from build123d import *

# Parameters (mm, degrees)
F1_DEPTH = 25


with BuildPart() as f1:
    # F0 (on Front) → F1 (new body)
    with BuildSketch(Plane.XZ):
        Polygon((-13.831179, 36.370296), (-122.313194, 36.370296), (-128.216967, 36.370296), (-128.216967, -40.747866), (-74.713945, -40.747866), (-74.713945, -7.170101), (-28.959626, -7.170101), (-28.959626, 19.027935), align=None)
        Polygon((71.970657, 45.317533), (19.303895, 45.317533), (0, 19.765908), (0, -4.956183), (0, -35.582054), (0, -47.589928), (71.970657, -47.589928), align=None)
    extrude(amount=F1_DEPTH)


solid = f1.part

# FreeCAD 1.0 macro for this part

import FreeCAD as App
import Part
import Sketcher

V = App.Vector


def add_polygon(sketch, points):
    """Adds a closed chain of lines whose ends are joined by coincident constraints."""
    first, n = sketch.GeometryCount, len(points)
    for a, b in zip(points, points[1:] + points[:1]):
        sketch.addGeometry(Part.LineSegment(App.Vector(*a, 0), App.Vector(*b, 0)), False)
    for i in range(n):
        sketch.addConstraint(Sketcher.Constraint("Coincident", first + i, 2, first + (i + 1) % n, 1))

doc = App.newDocument("Part")
body = doc.addObject("PartDesign::Body", "Body")
body.AllowCompound = True

# Sketch on XZ plane
sketch1 = body.newObject("Sketcher::SketchObject", "Sketch")
sketch1.AttachmentSupport = (doc.getObject("XZ_Plane"), [""])
sketch1.MapMode = "FlatFace"
add_polygon(sketch1, [(-13.831179, 36.370296), (-128.216967, 36.370296), (-128.216967, -40.747866), (-74.713945, -40.747866), (-74.713945, -7.170101), (-28.959626, -7.170101), (-28.959626, 19.027935)])  # lines 0-6
add_polygon(sketch1, [(71.970657, 45.317533), (19.303895, 45.317533), (0, 19.765908), (0, -47.589928), (71.970657, -47.589928)])  # lines 7-11
sketch1.addConstraint([
    Sketcher.Constraint("Horizontal", 0),
    Sketcher.Constraint("Vertical", 1),
    Sketcher.Constraint("Horizontal", 2),
    Sketcher.Constraint("Vertical", 3),
    Sketcher.Constraint("Horizontal", 4),
    Sketcher.Constraint("Vertical", 5),
    Sketcher.Constraint("Horizontal", 7),
    Sketcher.Constraint("Vertical", 9),
    Sketcher.Constraint("Horizontal", 10),
    Sketcher.Constraint("Vertical", 11),
    Sketcher.Constraint("PointOnObject", 8, 2, -2),
    Sketcher.Constraint("DistanceX", 0, 2, 0, 1, 114.385788),
    Sketcher.Constraint("DistanceX", 4, 1, 4, 2, 45.754319),
    Sketcher.Constraint("DistanceY", 11, 1, 11, 2, 92.907461),
    Sketcher.Constraint("DistanceY", 3, 2, -1, 1, 7.170101),
    Sketcher.Constraint("DistanceY", 2, 2, 5, 2, 59.775801),
    Sketcher.Constraint("DistanceY", 2, 2, 7, 2, 86.065399),
    Sketcher.Constraint("DistanceX", 2, 1, 2, 2, 53.503022),
    Sketcher.Constraint("DistanceX", 7, 2, 7, 1, 52.666762),
    Sketcher.Constraint("DistanceX", 10, 1, 10, 2, 71.970657),
    Sketcher.Constraint("DistanceY", 1, 2, 1, 1, 77.118162),
    Sketcher.Constraint("DistanceY", 3, 1, 3, 2, 33.577765),
    Sketcher.Constraint("DistanceY", 9, 2, 9, 1, 67.355836),
    Sketcher.Constraint("DistanceX", 6, 2, -1, 1, 13.831179),
])
pad1 = body.newObject("PartDesign::Pad", "Pad")
pad1.Profile = sketch1
pad1.Length = 25

doc.recompute()
